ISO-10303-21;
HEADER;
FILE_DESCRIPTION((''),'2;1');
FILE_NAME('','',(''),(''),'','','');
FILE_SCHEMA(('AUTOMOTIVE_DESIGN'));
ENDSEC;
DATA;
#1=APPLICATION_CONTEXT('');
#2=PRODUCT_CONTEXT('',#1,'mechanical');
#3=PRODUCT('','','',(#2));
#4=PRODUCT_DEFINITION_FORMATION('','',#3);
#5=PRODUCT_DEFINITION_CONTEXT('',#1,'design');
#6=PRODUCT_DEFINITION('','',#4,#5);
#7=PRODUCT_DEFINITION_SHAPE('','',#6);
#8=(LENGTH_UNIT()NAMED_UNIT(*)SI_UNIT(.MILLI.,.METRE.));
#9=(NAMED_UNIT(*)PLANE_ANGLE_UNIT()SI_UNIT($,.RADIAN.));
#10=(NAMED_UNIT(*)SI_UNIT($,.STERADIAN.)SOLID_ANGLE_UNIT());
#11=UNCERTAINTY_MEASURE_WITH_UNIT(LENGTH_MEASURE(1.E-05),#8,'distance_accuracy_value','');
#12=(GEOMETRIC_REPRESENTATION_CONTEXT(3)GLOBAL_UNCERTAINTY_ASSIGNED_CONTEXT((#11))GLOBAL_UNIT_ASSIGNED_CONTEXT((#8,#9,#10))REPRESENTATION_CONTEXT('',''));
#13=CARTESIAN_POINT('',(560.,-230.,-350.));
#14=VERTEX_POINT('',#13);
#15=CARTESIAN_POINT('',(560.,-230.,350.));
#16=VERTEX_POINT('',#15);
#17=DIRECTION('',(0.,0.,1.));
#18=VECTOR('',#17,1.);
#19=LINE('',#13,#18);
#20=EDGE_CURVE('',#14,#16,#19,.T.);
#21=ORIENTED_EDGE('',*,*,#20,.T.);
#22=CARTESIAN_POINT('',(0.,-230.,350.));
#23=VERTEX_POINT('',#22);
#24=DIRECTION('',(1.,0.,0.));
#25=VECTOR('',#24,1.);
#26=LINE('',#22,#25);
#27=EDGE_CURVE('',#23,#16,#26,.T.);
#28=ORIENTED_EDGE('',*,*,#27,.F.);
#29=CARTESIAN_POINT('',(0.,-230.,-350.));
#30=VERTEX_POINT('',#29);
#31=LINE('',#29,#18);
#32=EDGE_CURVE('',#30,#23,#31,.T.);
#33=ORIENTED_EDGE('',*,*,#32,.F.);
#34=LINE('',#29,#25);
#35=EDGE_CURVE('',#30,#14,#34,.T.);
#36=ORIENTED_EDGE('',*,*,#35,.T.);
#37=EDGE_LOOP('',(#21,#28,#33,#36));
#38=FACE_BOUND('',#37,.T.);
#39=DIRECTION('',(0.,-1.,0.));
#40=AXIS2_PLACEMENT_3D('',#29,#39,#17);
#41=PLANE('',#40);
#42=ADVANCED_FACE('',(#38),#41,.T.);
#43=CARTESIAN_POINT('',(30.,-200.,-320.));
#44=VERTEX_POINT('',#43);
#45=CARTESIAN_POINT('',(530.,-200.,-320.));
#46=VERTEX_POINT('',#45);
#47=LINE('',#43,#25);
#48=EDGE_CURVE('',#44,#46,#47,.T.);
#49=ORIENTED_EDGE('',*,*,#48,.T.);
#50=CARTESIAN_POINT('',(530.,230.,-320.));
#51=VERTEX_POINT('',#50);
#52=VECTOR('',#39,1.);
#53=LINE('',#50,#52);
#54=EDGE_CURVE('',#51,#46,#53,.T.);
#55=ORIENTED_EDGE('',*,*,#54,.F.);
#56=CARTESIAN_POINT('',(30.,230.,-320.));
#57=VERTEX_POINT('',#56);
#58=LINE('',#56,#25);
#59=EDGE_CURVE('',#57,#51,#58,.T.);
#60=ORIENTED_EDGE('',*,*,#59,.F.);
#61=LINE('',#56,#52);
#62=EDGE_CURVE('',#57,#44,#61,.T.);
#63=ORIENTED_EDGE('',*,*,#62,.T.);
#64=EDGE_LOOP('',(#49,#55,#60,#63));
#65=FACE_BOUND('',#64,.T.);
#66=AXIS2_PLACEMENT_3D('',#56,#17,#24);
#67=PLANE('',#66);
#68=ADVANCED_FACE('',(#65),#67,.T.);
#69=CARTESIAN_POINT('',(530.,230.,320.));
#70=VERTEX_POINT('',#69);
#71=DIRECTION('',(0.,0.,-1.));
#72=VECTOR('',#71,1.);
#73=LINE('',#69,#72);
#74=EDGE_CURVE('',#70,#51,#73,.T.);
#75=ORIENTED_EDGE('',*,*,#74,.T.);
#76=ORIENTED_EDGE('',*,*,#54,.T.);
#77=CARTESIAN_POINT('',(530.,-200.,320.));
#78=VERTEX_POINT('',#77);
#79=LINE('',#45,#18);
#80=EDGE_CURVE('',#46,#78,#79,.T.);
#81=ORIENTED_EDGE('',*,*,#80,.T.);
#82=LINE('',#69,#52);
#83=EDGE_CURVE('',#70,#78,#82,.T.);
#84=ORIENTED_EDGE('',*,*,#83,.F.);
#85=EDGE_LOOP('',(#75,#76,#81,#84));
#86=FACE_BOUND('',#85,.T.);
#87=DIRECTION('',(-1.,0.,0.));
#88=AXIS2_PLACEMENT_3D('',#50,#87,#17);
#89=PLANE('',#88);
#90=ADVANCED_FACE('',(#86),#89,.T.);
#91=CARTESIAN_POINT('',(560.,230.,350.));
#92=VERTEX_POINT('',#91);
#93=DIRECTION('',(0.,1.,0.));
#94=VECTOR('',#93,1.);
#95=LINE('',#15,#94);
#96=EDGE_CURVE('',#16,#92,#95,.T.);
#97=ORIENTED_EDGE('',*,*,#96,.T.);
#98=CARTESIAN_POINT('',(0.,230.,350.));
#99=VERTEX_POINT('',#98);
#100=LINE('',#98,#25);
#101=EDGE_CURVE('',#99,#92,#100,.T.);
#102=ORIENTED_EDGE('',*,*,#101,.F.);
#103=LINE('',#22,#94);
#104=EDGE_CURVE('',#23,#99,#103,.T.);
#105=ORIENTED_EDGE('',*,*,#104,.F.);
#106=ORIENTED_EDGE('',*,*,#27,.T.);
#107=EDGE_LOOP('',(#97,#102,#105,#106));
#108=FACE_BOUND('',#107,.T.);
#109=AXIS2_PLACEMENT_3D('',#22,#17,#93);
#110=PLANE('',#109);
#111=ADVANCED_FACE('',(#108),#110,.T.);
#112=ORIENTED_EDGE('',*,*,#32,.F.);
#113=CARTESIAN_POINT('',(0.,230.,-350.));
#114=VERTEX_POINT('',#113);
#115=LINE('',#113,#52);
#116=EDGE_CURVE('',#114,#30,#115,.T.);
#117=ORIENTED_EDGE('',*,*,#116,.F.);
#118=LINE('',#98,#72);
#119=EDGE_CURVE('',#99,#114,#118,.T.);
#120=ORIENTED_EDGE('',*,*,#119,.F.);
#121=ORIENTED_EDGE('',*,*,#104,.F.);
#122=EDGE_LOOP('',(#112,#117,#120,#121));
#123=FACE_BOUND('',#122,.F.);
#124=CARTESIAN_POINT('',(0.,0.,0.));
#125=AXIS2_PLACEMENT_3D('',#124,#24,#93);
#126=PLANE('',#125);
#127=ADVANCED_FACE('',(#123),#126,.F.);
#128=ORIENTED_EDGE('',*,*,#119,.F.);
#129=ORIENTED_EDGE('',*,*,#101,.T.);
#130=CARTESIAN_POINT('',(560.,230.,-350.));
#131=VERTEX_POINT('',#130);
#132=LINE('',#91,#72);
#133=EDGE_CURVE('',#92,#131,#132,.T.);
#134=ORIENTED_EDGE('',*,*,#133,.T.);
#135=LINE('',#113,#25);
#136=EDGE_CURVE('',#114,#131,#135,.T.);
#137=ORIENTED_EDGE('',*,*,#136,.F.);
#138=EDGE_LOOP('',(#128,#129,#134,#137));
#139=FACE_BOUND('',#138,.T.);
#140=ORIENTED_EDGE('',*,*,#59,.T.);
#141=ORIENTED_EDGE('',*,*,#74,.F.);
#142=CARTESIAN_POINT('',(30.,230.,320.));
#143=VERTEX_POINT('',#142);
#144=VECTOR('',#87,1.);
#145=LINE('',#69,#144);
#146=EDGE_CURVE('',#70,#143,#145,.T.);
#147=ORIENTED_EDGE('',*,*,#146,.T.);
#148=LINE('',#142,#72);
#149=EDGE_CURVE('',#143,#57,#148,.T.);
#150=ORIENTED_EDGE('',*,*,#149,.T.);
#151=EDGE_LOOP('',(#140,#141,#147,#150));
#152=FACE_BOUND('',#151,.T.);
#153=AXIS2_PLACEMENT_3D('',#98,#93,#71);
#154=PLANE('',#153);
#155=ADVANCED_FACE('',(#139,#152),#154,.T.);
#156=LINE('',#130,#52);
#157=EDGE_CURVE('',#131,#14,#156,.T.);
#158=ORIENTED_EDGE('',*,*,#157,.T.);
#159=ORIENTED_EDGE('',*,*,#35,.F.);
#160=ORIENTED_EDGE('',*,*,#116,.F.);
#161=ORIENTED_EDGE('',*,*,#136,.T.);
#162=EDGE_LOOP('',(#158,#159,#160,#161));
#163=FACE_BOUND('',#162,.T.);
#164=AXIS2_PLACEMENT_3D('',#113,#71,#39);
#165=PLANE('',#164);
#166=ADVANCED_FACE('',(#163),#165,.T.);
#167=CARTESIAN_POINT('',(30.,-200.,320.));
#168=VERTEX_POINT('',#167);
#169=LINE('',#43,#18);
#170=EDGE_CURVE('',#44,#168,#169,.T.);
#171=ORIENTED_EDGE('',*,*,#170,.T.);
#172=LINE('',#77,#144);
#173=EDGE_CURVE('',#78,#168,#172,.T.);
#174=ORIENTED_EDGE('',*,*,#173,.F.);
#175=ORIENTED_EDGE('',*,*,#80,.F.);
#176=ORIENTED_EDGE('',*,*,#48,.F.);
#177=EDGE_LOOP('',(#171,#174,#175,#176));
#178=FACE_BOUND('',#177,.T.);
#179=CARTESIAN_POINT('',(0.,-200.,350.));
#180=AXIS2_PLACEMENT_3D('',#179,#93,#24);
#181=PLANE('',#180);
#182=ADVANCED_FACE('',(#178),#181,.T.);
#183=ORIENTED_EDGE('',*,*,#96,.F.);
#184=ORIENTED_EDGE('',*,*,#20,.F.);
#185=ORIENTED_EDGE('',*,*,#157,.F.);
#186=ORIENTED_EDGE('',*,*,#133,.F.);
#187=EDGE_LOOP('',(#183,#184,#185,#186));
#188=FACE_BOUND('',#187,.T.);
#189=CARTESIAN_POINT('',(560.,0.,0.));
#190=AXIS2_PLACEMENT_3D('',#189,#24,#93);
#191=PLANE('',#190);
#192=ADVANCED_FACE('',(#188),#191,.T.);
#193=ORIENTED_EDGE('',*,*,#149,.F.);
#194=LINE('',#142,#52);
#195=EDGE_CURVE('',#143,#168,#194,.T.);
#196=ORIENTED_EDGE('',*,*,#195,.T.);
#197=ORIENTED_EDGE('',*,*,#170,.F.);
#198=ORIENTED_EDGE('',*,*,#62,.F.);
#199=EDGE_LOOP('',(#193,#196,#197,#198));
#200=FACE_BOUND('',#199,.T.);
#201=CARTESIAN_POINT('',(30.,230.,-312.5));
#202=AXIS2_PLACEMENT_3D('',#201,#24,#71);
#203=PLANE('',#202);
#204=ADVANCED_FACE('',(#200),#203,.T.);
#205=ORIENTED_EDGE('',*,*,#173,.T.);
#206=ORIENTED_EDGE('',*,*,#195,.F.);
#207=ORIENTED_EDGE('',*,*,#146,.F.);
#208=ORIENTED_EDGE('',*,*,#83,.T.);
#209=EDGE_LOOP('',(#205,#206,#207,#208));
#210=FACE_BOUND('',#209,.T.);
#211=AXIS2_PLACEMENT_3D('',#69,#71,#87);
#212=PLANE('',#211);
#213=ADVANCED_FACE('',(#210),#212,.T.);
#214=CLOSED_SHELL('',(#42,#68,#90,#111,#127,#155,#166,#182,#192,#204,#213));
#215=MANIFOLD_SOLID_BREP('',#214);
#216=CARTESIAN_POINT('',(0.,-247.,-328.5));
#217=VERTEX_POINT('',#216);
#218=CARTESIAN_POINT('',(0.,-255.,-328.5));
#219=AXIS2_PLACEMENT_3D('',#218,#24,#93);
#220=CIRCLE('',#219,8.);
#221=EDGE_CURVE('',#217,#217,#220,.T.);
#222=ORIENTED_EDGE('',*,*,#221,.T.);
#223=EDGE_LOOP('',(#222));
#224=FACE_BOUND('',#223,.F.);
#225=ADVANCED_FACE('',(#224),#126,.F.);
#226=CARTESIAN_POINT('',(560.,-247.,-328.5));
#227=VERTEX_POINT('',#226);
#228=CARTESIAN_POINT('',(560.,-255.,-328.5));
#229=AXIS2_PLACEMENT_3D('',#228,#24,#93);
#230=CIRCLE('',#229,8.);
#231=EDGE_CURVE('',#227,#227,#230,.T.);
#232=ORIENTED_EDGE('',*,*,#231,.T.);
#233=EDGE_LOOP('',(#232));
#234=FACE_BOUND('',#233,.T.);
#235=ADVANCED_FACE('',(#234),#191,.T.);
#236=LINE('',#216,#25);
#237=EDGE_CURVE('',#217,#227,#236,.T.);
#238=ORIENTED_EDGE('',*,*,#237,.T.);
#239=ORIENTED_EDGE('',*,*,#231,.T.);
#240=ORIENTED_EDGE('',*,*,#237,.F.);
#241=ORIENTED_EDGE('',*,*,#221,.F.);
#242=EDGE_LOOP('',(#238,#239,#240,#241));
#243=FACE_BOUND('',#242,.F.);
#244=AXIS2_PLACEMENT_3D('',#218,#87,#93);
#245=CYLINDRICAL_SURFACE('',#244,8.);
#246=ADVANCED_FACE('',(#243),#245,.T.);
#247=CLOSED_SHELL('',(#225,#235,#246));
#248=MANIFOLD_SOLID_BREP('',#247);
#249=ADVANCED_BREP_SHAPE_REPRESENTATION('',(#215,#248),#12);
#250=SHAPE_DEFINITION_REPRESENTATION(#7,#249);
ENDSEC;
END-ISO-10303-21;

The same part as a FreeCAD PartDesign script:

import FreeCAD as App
import Part
import Sketcher
from FreeCAD import Vector
Q = App.Units.Quantity

doc = App.newDocument("Part")
body = doc.addObject("PartDesign::Body", "Body")
body.AllowCompound = True

sketch1 = body.newObject("Sketcher::SketchObject", "Sketch")
sketch1.AttachmentSupport = (doc.getObject("YZ_Plane"), [""])
sketch1.MapMode = "FlatFace"
sketch1.addGeometry([
    Part.LineSegment(Vector(230, 350, 0), Vector(-230, 350, 0)),
    Part.LineSegment(Vector(-230, 350, 0), Vector(-230, -350, 0)),
    Part.LineSegment(Vector(-230, -350, 0), Vector(230, -350, 0)),
    Part.LineSegment(Vector(230, -350, 0), Vector(230, 350, 0)),
    Part.Circle(Vector(-255, -328.5, 0), Vector(0, 0, 1), 8),
], False)
sketch1.addConstraint([
    Sketcher.Constraint("Coincident", 0, 2, 1, 1),
    Sketcher.Constraint("Coincident", 1, 2, 2, 1),
    Sketcher.Constraint("Coincident", 2, 2, 3, 1),
    Sketcher.Constraint("Coincident", 3, 2, 0, 1),
    Sketcher.Constraint("Horizontal", 0),
    Sketcher.Constraint("Vertical", 1),
    Sketcher.Constraint("Horizontal", 2),
    Sketcher.Constraint("Vertical", 3),
    Sketcher.Constraint("Symmetric", 0, 2, 2, 2, -1, 1),
    Sketcher.Constraint("Diameter", 4, Q("16 mm")),
    Sketcher.Constraint("DistanceX", 0, 2, 0, 1, Q("460 mm")),
    Sketcher.Constraint("DistanceY", 1, 2, 1, 1, Q("700 mm")),
    Sketcher.Constraint("DistanceX", 4, 3, 0, 2, Q("25 mm")),
    Sketcher.Constraint("DistanceY", 1, 2, 4, 3, Q("21.5 mm")),
])
pad1 = body.newObject("PartDesign::Pad", "Pad")
pad1.Profile = sketch1
pad1.Length = 560

sketch2 = body.newObject("Sketcher::SketchObject", "Sketch001")
sketch2.AttachmentSupport = (doc.getObject("XZ_Plane"), [""])
sketch2.MapMode = "FlatFace"
sketch2.AttachmentOffset = App.Placement(Vector(0, 0, -230), App.Rotation())
sketch2.addGeometry([
    Part.LineSegment(Vector(30, -320, 0), Vector(30, 320, 0)),
    Part.LineSegment(Vector(30, 320, 0), Vector(530, 320, 0)),
    Part.LineSegment(Vector(530, 320, 0), Vector(530, -320, 0)),
    Part.LineSegment(Vector(530, -320, 0), Vector(30, -320, 0)),
], False)
sketch2.addConstraint([
    Sketcher.Constraint("Coincident", 0, 2, 1, 1),
    Sketcher.Constraint("Coincident", 1, 2, 2, 1),
    Sketcher.Constraint("Coincident", 2, 2, 3, 1),
    Sketcher.Constraint("Coincident", 3, 2, 0, 1),
    Sketcher.Constraint("Vertical", 0),
    Sketcher.Constraint("Horizontal", 1),
    Sketcher.Constraint("Vertical", 2),
    Sketcher.Constraint("Horizontal", 3),
    Sketcher.Constraint("DistanceX", 1, 1, 1, 2, Q("500 mm")),
    Sketcher.Constraint("DistanceY", 0, 1, 0, 2, Q("640 mm")),
    Sketcher.Constraint("DistanceX", -1, 1, 0, 2, Q("30 mm")),
    Sketcher.Constraint("DistanceY", -1, 1, 0, 2, Q("320 mm")),
])
pocket1 = body.newObject("PartDesign::Pocket", "Pocket")
pocket1.Profile = sketch2
pocket1.Length = 430
pocket1.Reversed = True

doc.recompute()
